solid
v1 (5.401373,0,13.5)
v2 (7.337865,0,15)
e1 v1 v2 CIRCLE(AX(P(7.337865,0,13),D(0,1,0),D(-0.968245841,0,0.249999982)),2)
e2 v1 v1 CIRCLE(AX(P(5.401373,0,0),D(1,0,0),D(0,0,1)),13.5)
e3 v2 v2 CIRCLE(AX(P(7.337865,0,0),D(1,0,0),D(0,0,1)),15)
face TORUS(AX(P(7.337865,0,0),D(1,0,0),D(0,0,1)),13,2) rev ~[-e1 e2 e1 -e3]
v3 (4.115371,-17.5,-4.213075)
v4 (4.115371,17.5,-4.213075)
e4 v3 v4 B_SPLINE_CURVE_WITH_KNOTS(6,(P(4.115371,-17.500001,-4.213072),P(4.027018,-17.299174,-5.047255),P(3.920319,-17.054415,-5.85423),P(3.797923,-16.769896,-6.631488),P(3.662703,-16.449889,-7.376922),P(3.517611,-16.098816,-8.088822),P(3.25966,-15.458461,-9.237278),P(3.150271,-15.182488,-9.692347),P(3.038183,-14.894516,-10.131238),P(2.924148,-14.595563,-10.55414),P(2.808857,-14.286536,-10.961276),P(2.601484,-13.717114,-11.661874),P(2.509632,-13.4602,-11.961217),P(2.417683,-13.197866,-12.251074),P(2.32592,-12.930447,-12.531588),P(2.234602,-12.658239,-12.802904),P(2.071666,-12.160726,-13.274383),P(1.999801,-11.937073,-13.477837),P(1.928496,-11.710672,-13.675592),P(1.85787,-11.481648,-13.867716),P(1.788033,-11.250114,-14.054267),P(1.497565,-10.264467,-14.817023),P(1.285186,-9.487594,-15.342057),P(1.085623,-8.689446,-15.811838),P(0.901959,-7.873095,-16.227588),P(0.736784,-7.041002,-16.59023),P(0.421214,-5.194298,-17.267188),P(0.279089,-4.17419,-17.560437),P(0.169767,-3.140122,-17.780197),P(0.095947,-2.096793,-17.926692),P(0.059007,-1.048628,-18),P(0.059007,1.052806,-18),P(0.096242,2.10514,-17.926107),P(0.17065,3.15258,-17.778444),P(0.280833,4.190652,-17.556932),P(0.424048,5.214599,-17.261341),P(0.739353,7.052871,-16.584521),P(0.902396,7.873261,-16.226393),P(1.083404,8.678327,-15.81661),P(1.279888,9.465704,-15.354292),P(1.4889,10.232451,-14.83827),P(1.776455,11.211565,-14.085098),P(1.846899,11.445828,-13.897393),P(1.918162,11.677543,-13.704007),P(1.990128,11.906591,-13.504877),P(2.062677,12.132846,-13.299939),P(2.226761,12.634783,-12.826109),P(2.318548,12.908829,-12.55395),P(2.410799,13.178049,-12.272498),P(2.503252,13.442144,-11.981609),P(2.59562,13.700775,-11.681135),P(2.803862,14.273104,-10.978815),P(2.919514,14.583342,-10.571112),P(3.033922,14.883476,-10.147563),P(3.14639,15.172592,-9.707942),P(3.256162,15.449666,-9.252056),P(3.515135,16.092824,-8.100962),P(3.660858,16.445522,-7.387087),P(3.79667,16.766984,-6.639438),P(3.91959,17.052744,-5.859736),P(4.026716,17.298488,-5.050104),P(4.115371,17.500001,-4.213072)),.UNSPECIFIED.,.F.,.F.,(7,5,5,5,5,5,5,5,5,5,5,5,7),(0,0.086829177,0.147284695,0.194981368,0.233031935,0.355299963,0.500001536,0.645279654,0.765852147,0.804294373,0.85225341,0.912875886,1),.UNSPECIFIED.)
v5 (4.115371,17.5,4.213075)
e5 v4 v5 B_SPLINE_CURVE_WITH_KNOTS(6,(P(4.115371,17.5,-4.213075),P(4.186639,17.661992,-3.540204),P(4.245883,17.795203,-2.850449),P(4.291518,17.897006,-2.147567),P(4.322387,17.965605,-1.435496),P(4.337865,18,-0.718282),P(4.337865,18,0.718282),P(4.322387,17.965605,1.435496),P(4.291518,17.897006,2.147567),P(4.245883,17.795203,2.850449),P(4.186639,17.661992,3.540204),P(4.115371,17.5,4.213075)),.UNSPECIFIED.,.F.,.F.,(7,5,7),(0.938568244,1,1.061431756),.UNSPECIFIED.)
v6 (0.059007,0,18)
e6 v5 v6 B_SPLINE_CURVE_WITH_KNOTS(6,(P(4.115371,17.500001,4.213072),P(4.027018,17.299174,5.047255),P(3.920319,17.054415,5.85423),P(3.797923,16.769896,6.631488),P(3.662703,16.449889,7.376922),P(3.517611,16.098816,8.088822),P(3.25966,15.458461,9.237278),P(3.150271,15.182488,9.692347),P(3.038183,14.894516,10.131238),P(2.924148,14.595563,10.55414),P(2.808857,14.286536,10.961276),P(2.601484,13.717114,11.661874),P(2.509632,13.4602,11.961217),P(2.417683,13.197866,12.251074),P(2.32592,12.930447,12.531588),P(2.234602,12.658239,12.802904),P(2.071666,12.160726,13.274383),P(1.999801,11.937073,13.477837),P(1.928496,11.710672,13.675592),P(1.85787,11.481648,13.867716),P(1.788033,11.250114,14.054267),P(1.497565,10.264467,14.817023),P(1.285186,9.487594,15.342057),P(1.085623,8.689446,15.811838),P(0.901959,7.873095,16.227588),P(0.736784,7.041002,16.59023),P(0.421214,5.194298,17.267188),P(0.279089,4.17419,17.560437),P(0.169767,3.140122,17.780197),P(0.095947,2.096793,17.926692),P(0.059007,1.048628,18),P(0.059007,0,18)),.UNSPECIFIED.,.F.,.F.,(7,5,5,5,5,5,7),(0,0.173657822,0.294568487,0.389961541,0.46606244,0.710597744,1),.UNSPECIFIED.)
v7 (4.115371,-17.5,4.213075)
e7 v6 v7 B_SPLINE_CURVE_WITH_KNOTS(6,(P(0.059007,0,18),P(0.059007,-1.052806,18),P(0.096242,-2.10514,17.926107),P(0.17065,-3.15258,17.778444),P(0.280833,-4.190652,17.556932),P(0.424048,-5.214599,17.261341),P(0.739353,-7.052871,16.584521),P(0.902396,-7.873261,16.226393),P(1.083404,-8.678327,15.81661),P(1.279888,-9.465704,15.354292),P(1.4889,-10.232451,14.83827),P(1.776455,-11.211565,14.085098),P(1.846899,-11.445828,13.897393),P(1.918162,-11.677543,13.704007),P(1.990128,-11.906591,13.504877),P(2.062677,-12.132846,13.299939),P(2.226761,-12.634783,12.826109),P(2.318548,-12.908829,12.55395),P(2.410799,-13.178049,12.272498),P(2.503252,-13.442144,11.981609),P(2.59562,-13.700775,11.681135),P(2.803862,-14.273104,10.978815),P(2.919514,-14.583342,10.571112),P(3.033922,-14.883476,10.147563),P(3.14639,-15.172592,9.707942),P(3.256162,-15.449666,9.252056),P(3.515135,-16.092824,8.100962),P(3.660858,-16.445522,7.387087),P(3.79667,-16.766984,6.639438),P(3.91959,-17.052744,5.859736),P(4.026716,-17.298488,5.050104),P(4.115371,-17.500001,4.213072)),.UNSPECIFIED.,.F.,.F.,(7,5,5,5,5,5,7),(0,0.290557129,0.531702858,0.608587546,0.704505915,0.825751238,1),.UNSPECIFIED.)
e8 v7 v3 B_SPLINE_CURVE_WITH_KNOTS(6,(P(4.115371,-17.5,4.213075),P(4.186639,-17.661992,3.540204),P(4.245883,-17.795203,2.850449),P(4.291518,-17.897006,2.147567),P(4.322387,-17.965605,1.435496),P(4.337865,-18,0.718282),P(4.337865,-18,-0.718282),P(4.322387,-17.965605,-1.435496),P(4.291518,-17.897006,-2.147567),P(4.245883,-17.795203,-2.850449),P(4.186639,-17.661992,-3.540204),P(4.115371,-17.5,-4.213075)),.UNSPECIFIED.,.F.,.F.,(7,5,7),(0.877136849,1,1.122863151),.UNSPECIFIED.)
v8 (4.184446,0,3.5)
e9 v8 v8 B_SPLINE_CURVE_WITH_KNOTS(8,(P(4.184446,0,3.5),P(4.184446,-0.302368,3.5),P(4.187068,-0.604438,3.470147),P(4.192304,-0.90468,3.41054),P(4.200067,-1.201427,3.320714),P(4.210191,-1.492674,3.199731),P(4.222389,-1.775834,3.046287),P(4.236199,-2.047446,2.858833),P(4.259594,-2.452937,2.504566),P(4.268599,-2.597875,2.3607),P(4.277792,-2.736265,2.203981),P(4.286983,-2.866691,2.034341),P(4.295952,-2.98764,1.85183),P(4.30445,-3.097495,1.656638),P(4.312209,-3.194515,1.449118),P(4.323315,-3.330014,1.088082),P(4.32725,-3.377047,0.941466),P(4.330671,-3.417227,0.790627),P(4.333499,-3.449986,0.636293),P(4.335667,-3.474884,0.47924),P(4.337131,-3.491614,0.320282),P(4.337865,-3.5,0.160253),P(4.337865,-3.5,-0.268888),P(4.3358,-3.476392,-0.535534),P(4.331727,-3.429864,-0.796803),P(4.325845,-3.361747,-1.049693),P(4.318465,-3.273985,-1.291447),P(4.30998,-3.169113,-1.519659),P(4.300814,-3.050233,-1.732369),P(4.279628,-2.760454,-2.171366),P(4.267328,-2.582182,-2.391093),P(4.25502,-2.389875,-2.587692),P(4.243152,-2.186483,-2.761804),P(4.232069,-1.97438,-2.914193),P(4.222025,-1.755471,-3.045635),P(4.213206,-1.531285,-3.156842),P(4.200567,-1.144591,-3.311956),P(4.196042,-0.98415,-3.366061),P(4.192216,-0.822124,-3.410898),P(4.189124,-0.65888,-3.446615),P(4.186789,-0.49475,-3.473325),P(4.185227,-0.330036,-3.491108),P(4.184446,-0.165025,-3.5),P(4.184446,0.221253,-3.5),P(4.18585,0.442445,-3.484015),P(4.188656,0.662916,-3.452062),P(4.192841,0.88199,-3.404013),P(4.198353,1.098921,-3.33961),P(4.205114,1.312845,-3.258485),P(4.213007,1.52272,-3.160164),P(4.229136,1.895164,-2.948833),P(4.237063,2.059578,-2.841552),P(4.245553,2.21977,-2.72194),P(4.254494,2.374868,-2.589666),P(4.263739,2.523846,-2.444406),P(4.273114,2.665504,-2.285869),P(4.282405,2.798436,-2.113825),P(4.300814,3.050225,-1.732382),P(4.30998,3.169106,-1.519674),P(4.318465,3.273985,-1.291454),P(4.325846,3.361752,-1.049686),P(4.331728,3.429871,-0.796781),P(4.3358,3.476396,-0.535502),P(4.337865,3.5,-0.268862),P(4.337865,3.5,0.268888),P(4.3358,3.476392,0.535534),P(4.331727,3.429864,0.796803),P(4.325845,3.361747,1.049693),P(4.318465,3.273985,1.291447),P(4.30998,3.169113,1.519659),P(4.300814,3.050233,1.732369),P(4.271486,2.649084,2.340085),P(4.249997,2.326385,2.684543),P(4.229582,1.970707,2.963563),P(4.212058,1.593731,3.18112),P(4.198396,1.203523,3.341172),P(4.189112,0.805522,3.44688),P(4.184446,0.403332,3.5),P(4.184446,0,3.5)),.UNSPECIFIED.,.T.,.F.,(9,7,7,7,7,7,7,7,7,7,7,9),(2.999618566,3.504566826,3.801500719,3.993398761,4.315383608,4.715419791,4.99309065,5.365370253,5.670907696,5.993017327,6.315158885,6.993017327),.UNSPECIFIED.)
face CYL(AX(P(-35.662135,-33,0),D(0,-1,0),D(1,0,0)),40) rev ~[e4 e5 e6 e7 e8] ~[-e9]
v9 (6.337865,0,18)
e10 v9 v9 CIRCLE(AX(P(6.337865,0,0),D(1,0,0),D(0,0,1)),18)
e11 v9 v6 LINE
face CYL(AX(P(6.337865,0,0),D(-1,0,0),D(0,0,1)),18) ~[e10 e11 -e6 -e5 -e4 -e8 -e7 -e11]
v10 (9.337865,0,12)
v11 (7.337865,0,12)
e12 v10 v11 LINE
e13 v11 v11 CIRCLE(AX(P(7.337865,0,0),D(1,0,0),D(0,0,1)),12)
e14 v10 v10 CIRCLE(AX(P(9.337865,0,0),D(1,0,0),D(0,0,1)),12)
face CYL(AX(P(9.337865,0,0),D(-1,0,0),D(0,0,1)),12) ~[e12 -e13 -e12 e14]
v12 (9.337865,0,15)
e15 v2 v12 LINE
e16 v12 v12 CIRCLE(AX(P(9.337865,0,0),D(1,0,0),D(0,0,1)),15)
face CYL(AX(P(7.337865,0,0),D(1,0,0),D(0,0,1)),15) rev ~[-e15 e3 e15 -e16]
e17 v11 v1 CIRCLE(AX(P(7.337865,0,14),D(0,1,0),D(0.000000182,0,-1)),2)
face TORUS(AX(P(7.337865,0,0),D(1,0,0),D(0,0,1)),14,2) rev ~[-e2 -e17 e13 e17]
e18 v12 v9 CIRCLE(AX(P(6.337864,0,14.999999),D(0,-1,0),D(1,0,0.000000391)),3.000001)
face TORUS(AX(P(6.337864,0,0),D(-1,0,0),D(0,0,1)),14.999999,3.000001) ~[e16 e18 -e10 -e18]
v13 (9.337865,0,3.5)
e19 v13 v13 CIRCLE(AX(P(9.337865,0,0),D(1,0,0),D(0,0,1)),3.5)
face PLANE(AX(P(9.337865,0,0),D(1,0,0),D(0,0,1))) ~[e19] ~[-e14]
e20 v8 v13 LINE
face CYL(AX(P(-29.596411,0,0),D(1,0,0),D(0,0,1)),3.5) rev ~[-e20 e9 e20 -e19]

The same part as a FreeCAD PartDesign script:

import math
import FreeCAD as App
import Part
import Sketcher

V = App.Vector

doc = App.newDocument("Part")
body = doc.addObject("PartDesign::Body", "Body")

# Sketch on XZ plane
sketch1 = body.newObject("Sketcher::SketchObject", "Sketch")
sketch1.AttachmentSupport = (doc.getObject("XZ_Plane"), [""])
sketch1.MapMode = "FlatFace"
sketch1.addGeometry([
    Part.ArcOfCircle(Part.Circle(V(7.3, 13, 0), V(0, 0, 1), 2), math.radians(90), math.radians(166)),  # 0
    Part.LineSegment(V(7.3, 15, 0), V(9.3, 15, 0)),  # 1
    Part.ArcOfCircle(Part.Circle(V(6.3, 15, 0), V(0, 0, 1), 3), math.radians(0), math.radians(90)),  # 2
    Part.LineSegment(V(6.3, 18, 0), V(-29.6, 18, 0)),  # 3
    Part.LineSegment(V(-29.6, 18, 0), V(-29.6, 3.5, 0)),  # 4
    Part.LineSegment(V(-29.6, 3.5, 0), V(9.3, 3.5, 0)),  # 5
    Part.LineSegment(V(9.3, 3.5, 0), V(9.3, 12, 0)),  # 6
    Part.LineSegment(V(9.3, 12, 0), V(7.3, 12, 0)),  # 7
    Part.ArcOfCircle(Part.Circle(V(7.3, 14, 0), V(0, 0, 1), 2), math.radians(-166), math.radians(-90)),  # 8
], False)
sketch1.addConstraint([
    Sketcher.Constraint("Tangent", 0, 1, 1, 1),
    Sketcher.Constraint("Coincident", 1, 2, 2, 1),
    Sketcher.Constraint("Tangent", 2, 2, 3, 1),
    Sketcher.Constraint("Coincident", 3, 2, 4, 1),
    Sketcher.Constraint("Coincident", 4, 2, 5, 1),
    Sketcher.Constraint("Coincident", 5, 2, 6, 1),
    Sketcher.Constraint("Coincident", 6, 2, 7, 1),
    Sketcher.Constraint("Tangent", 7, 2, 8, 2),
    Sketcher.Constraint("Coincident", 8, 1, 0, 2),
    Sketcher.Constraint("Horizontal", 1),
    Sketcher.Constraint("Horizontal", 3),
    Sketcher.Constraint("Vertical", 4),
    Sketcher.Constraint("Horizontal", 5),
    Sketcher.Constraint("Vertical", 6),
    Sketcher.Constraint("Horizontal", 7),
    Sketcher.Constraint("Equal", 0, 8),
    Sketcher.Constraint("Horizontal", 2, 3, 0, 1),
    Sketcher.Constraint("Vertical", 0, 3, 8, 3),
    Sketcher.Constraint("Vertical", 1, 2, 5, 2),
    Sketcher.Constraint("Radius", 0, 2.0),
    Sketcher.Constraint("Radius", 2, 3.000001),
    Sketcher.Constraint("DistanceX", 1, 1, 1, 2, 2.0),
    Sketcher.Constraint("DistanceY", 4, 2, 4, 1, 14.5),
    Sketcher.Constraint("DistanceY", 6, 1, 6, 2, 8.5),
    Sketcher.Constraint("DistanceY", -1, 1, 0, 3, 13.0),
    Sketcher.Constraint("DistanceX", 3, 2, 3, 1, 35.934276),
    Sketcher.Constraint("DistanceX", 3, 2, -1, 1, 29.596411),
])
revolution = body.newObject("PartDesign::Revolution", "Revolution")
revolution.Profile = sketch1
revolution.ReferenceAxis = (sketch1, ["H_Axis"])
revolution.Angle = 360

# Sketch on XZ plane
sketch2 = body.newObject("Sketcher::SketchObject", "Sketch001")
sketch2.AttachmentSupport = (doc.getObject("XZ_Plane"), [""])
sketch2.MapMode = "FlatFace"
sketch2.addGeometry(Part.Circle(V(-36, 0, 0), V(0, 0, 1), 40), False)
sketch2.addConstraint([
    Sketcher.Constraint("PointOnObject", 0, 3, -1),
    Sketcher.Constraint("Diameter", 0, 80.0),
    Sketcher.Constraint("DistanceX", 0, 3, -1, 1, 35.662135),
])
pocket1 = body.newObject("PartDesign::Pocket", "Pocket")
pocket1.Profile = sketch2
pocket1.Length = 35
pocket1.Midplane = True

# Sketch on XZ plane
sketch3 = body.newObject("Sketcher::SketchObject", "Sketch002")
sketch3.AttachmentSupport = (doc.getObject("XZ_Plane"), [""])
sketch3.MapMode = "FlatFace"
sketch3.addGeometry(Part.Circle(V(-36, 0, 0), V(0, 0, 1), 40), False)
sketch3.addConstraint([
    Sketcher.Constraint("PointOnObject", 0, 3, -1),
    Sketcher.Constraint("Diameter", 0, 80.0),
    Sketcher.Constraint("DistanceX", 0, 3, -1, 1, 35.662135),
])
pad1 = body.newObject("PartDesign::Pad", "Pad")
pad1.Profile = sketch3
pad1.Length = 66
pad1.Midplane = True

# Sketch on XZ plane
sketch4 = body.newObject("Sketcher::SketchObject", "Sketch003")
sketch4.AttachmentSupport = (doc.getObject("XZ_Plane"), [""])
sketch4.MapMode = "FlatFace"
sketch4.AttachmentOffset = App.Placement(V(0, 0, 33), App.Rotation())
sketch4.addGeometry(Part.Circle(V(-36, 0, 0), V(0, 0, 1), 40), False)
sketch4.addConstraint([
    Sketcher.Constraint("PointOnObject", 0, 3, -1),
    Sketcher.Constraint("Diameter", 0, 80.0),
    Sketcher.Constraint("DistanceX", 0, 3, -1, 1, 35.662135),
])
pocket2 = body.newObject("PartDesign::Pocket", "Pocket001")
pocket2.Profile = sketch4
pocket2.Length = 80

doc.recompute()
